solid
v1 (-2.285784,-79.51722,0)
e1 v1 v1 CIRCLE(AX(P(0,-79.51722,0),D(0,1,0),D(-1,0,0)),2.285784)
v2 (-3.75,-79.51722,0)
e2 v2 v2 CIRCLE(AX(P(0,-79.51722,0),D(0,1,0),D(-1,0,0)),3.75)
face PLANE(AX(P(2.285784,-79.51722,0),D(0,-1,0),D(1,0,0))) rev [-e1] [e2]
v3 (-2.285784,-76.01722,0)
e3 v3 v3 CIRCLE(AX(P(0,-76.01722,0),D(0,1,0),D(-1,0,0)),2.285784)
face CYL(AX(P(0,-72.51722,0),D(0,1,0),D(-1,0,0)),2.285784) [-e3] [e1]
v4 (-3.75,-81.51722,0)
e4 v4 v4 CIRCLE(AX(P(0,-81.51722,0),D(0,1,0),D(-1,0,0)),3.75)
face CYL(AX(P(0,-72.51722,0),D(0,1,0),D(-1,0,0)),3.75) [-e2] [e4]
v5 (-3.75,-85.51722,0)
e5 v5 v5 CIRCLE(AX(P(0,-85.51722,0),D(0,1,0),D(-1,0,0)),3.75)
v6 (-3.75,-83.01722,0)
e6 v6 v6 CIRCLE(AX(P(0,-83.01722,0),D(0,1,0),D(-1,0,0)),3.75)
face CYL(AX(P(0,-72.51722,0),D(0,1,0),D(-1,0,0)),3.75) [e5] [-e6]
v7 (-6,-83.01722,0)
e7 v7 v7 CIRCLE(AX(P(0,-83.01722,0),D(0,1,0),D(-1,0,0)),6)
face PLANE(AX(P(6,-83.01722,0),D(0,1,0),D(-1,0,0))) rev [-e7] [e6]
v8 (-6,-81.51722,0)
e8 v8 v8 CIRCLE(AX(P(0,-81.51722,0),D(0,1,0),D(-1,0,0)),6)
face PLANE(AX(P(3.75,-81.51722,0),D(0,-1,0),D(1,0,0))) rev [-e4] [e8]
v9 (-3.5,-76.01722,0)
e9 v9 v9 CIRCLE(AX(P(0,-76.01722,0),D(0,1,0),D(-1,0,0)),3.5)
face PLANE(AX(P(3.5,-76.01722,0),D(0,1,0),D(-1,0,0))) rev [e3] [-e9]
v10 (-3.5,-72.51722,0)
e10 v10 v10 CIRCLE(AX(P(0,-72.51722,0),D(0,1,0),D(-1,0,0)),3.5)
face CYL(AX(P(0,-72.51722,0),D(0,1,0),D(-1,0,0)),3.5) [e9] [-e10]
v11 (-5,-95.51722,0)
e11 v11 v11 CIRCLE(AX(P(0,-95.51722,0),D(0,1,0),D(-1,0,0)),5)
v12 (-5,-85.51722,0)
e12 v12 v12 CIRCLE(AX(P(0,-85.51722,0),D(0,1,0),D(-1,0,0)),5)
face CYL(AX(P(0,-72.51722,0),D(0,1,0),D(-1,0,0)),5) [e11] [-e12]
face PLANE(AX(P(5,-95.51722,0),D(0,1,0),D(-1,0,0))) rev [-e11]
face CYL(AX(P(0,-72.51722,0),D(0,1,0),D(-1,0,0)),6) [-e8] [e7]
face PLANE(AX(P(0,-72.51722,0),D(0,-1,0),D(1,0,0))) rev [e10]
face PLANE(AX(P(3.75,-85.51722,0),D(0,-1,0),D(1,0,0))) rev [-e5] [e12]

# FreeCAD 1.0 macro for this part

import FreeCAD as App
import Part
import Sketcher
Q = App.Units.Quantity


def add_polygon(sketch, points):
    """Adds a closed chain of lines whose ends are joined by coincident constraints."""
    first, n = sketch.GeometryCount, len(points)
    for a, b in zip(points, points[1:] + points[:1]):
        sketch.addGeometry(Part.LineSegment(App.Vector(*a, 0), App.Vector(*b, 0)), False)
    for i in range(n):
        sketch.addConstraint(Sketcher.Constraint("Coincident", first + i, 2, first + (i + 1) % n, 1))

doc = App.newDocument("Part")
body = doc.addObject("PartDesign::Body", "Body")

# Sketch on XY plane
sketch1 = body.newObject("Sketcher::SketchObject", "Sketch")
sketch1.AttachmentSupport = (doc.getObject("XY_Plane"), [""])
sketch1.MapMode = "FlatFace"
add_polygon(sketch1, [(3.5, -72.5), (0, -72.5), (0, -95.5), (5, -95.5), (5, -85.5), (3.8, -85.5), (3.8, -83), (6, -83), (6, -81.5), (3.8, -81.5), (3.8, -79.5), (2.3, -79.5), (2.3, -76), (3.5, -76)])  # lines 0-13
sketch1.addConstraint([
    Sketcher.Constraint("Horizontal", 0),
    Sketcher.Constraint("Vertical", 1),
    Sketcher.Constraint("Horizontal", 2),
    Sketcher.Constraint("Vertical", 3),
    Sketcher.Constraint("Horizontal", 4),
    Sketcher.Constraint("Vertical", 5),
    Sketcher.Constraint("Horizontal", 6),
    Sketcher.Constraint("Vertical", 7),
    Sketcher.Constraint("Horizontal", 8),
    Sketcher.Constraint("Vertical", 9),
    Sketcher.Constraint("Horizontal", 10),
    Sketcher.Constraint("Vertical", 11),
    Sketcher.Constraint("Horizontal", 12),
    Sketcher.Constraint("Vertical", 13),
    Sketcher.Constraint("PointOnObject", 0, 2, -2),
    Sketcher.Constraint("Vertical", 5, 2, 8, 2),
    Sketcher.Constraint("Equal", 0, 11),
    Sketcher.Constraint("Equal", 11, 13),
    Sketcher.Constraint("DistanceX", 2, 1, 2, 2, Q("5 mm")),
    Sketcher.Constraint("DistanceY", 1, 2, 1, 1, Q("23 mm")),
    Sketcher.Constraint("DistanceY", 3, 1, 3, 2, Q("10 mm")),
    Sketcher.Constraint("DistanceY", 9, 1, 9, 2, Q("2 mm")),
    Sketcher.Constraint("DistanceX", 0, 2, 0, 1, Q("3.5 mm")),
    Sketcher.Constraint("DistanceY", 5, 1, 5, 2, Q("2.5 mm")),
    Sketcher.Constraint("DistanceX", -1, 1, 6, 2, Q("6 mm")),
    Sketcher.Constraint("DistanceX", 4, 2, 4, 1, Q("1.25 mm")),
    Sketcher.Constraint("DistanceX", 10, 2, 10, 1, Q("1.464216 mm")),
    Sketcher.Constraint("DistanceY", 0, 2, -1, 1, Q("72.51722 mm")),
])
revolution = body.newObject("PartDesign::Revolution", "Revolution")
revolution.Profile = sketch1
revolution.ReferenceAxis = (sketch1, ["V_Axis"])
revolution.Angle = 360

doc.recompute()
